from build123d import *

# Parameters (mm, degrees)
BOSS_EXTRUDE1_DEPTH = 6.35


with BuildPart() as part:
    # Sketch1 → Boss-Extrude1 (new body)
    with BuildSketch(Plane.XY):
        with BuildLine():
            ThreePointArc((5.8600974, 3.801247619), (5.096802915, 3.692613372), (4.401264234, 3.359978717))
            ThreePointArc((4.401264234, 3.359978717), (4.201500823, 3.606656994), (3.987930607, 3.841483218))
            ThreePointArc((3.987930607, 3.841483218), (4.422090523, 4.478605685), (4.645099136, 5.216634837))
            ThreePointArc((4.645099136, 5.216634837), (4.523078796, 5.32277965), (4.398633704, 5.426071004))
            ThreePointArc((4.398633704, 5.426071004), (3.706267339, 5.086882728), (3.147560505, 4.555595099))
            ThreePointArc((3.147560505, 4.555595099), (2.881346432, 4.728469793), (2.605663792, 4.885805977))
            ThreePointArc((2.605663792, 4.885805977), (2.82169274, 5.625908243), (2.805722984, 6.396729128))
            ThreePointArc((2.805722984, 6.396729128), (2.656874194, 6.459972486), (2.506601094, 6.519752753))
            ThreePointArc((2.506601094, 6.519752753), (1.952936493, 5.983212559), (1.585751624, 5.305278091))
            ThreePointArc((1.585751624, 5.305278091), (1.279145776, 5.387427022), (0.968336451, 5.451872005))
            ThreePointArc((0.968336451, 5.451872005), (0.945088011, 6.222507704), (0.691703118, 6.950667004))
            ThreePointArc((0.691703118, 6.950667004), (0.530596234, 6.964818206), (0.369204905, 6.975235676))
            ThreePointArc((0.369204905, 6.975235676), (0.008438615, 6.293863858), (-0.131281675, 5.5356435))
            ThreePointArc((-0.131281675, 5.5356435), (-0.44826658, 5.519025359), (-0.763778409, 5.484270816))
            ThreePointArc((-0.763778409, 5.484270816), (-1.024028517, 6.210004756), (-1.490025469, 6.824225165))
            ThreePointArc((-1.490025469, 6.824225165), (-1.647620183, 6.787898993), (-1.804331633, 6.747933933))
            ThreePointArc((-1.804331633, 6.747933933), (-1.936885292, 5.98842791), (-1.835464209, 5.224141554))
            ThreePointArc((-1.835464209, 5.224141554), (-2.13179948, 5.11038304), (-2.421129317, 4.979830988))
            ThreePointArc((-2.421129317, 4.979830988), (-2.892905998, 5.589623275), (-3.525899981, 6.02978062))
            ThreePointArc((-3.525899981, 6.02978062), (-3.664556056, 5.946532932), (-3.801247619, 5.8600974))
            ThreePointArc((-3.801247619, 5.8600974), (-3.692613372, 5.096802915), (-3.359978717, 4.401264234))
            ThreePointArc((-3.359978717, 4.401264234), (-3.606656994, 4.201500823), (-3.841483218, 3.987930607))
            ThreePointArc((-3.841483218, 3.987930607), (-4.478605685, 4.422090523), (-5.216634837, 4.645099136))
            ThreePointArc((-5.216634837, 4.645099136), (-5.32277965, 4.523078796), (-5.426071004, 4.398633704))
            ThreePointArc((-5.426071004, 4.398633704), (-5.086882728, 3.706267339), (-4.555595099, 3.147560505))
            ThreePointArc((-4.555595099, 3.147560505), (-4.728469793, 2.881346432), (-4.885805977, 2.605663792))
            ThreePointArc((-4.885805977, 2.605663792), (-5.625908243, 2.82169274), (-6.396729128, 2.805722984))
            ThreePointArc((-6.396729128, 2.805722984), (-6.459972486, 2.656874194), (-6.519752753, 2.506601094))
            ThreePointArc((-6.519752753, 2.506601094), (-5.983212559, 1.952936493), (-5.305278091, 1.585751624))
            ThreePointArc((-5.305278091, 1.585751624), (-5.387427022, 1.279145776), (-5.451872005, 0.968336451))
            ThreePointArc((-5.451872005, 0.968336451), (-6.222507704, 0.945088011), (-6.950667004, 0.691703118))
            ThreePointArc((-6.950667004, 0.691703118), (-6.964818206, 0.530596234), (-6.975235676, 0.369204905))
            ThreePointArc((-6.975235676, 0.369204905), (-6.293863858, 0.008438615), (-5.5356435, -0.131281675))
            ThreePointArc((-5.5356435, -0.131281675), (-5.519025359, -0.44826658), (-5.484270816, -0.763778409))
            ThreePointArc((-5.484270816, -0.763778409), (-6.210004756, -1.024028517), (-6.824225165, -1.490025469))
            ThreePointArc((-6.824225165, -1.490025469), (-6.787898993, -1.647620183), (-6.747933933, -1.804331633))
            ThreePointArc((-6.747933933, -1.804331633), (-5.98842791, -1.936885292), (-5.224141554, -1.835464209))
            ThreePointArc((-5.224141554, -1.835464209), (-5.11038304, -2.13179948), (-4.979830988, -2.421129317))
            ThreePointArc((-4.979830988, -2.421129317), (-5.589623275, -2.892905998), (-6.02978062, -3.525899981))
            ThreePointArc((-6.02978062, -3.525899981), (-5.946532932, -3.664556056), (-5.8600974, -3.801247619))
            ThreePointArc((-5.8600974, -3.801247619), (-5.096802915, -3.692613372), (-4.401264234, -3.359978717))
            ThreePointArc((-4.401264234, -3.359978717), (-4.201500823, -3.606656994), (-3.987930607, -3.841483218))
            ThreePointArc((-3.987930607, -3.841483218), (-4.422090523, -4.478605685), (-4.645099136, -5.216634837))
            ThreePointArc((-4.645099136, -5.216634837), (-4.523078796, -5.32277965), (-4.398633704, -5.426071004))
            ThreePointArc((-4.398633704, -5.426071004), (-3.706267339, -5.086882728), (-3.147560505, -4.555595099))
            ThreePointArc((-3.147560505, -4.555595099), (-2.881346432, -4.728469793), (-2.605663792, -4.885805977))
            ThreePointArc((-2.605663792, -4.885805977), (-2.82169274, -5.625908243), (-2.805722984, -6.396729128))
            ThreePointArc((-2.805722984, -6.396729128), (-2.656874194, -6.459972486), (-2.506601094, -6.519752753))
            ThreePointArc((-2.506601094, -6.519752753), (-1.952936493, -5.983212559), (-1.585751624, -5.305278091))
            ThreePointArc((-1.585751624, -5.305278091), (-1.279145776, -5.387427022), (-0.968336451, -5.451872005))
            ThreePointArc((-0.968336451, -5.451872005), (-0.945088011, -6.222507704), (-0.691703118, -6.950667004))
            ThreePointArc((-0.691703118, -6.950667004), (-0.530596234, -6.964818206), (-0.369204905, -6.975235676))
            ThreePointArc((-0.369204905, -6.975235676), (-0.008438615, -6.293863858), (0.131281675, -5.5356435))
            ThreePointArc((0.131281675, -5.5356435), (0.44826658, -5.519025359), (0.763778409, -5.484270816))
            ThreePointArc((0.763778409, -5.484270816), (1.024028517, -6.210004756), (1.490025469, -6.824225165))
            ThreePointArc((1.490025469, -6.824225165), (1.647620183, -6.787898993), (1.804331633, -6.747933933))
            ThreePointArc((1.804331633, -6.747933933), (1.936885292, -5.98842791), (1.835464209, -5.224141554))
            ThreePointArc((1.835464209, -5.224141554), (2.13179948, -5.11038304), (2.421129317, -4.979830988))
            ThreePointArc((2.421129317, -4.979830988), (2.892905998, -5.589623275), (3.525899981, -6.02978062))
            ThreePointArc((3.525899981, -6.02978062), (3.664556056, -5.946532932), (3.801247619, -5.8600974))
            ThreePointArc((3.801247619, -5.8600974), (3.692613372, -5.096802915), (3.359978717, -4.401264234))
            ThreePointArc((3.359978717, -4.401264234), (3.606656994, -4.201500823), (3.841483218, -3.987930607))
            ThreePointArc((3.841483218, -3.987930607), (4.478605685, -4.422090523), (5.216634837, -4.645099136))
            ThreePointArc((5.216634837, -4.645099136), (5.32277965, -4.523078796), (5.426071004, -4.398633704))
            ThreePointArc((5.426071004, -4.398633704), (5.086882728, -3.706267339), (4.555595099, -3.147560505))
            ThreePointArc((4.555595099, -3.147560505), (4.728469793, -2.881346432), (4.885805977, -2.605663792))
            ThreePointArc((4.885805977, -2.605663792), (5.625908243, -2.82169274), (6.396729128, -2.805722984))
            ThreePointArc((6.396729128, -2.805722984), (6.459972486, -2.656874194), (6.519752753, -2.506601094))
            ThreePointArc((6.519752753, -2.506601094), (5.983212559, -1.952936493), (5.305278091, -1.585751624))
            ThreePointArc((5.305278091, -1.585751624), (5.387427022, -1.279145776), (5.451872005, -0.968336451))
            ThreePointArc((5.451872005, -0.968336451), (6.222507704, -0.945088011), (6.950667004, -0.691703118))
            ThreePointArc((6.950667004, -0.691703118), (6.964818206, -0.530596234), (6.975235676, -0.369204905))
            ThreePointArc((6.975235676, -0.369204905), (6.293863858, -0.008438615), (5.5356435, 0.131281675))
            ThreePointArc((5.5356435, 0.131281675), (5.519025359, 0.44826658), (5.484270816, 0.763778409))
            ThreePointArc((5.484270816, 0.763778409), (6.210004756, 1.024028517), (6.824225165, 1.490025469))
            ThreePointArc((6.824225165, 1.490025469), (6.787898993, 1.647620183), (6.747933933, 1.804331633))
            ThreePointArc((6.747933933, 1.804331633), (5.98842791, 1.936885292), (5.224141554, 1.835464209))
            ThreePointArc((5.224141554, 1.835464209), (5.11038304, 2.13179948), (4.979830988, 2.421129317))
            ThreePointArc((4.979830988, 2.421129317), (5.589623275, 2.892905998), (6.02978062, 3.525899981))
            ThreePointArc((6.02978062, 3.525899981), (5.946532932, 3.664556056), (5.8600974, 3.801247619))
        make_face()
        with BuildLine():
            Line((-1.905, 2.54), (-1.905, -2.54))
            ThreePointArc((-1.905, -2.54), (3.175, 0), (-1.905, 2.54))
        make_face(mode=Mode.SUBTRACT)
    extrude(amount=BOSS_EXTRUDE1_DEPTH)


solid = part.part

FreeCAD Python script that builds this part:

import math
import FreeCAD as App
import Part
import Sketcher
Q = App.Units.Quantity

doc = App.newDocument("Part")
body = doc.addObject("PartDesign::Body", "Body")

# Sketch on XY plane
sketch1 = doc.addObject("Sketcher::SketchObject", "Sketch")
body.addObject(sketch1)
sketch1.AttachmentSupport = (doc.XY_Plane, [""])
sketch1.MapMode = "FlatFace"
sketch1.addGeometry([
    Part.ArcOfCircle(Part.Circle(App.Vector(5.832198, 1.261401, 0), App.Vector(0, 0, 1), 2.54), math.radians(89.370646), math.radians(124.288462)),  # 0
    Part.ArcOfCircle(Part.Circle(App.Vector(0, 0, 0), App.Vector(0, 0, 1), 5.5372), math.radians(37.358555), math.radians(43.928421)),  # 1
    Part.ArcOfCircle(Part.Circle(App.Vector(2.130337, 5.573807, 0), App.Vector(0, 0, 1), 2.54), math.radians(-43.001486), math.radians(-8.08367)),  # 2
    Part.ArcOfCircle(Part.Circle(App.Vector(-0.000001, -0.000001, 0), App.Vector(0, 0, 1), 6.985002), math.radians(48.316861), math.radians(50.970115)),  # 3
    Part.ArcOfCircle(Part.Circle(App.Vector(5.156955, 3.001912, 0), App.Vector(0, 0, 1), 2.54), math.radians(107.370646), math.radians(142.288462)),  # 4
    Part.ArcOfCircle(Part.Circle(App.Vector(0, 0, 0), App.Vector(0, 0, 1), 5.5372), math.radians(55.358555), math.radians(61.928421)),  # 5
    Part.ArcOfCircle(Part.Circle(App.Vector(0.30367, 5.959316, 0), App.Vector(0, 0, 1), 2.54), math.radians(-25.001486), math.radians(9.91633)),  # 6
    Part.ArcOfCircle(Part.Circle(App.Vector(0, 0, 0), App.Vector(0, 0, 1), 6.985), math.radians(66.31686), math.radians(68.970115)),  # 7
    Part.ArcOfCircle(Part.Circle(App.Vector(3.976914, 4.448575, 0), App.Vector(0, 0, 1), 2.54), math.radians(125.370646), math.radians(160.288462)),  # 8
    Part.ArcOfCircle(Part.Circle(App.Vector(0, 0, 0), App.Vector(0, 0, 1), 5.5372), math.radians(73.358555), math.radians(79.92842)),  # 9
    Part.ArcOfCircle(Part.Circle(App.Vector(-1.552723, 5.761486, 0), App.Vector(0, 0, 1), 2.54), math.radians(-7.001486), math.radians(27.91633)),  # 10
    Part.ArcOfCircle(Part.Circle(App.Vector(0, 0.000001, 0), App.Vector(0, 0, 1), 6.984999), math.radians(84.31686), math.radians(86.970116)),  # 11
    Part.ArcOfCircle(Part.Circle(App.Vector(2.407585, 5.45978, 0), App.Vector(0, 0, 1), 2.54), math.radians(143.370646), math.radians(178.288462)),  # 12
    Part.ArcOfCircle(Part.Circle(App.Vector(0, 0, 0), App.Vector(0, 0, 1), 5.5372), math.radians(91.358555), math.radians(97.928421)),  # 13
    Part.ArcOfCircle(Part.Circle(App.Vector(-3.257124, 4.999681, 0), App.Vector(0, 0, 1), 2.54), math.radians(10.998514), math.radians(45.91633)),  # 14
    Part.ArcOfCircle(Part.Circle(App.Vector(0, 0.000001, 0), App.Vector(0, 0, 1), 6.984999), math.radians(102.31686), math.radians(104.970115)),  # 15
    Part.ArcOfCircle(Part.Circle(App.Vector(0.602585, 5.936544, 0), App.Vector(0, 0, 1), 2.54), math.radians(161.370646), math.radians(196.288462)),  # 16
    Part.ArcOfCircle(Part.Circle(App.Vector(0, 0, 0), App.Vector(0, 0, 1), 5.5372), math.radians(109.358555), math.radians(115.928421)),  # 17
    Part.ArcOfCircle(Part.Circle(App.Vector(-4.642695, 3.748472, 0), App.Vector(0, 0, 1), 2.54), math.radians(28.998514), math.radians(63.91633)),  # 18
    Part.ArcOfCircle(Part.Circle(App.Vector(0, 0, 0), App.Vector(0, 0, 1), 6.985), math.radians(120.31686), math.radians(122.970115)),  # 19
    Part.ArcOfCircle(Part.Circle(App.Vector(-1.261401, 5.832198, 0), App.Vector(0, 0, 1), 2.54), math.radians(179.370646), math.radians(214.288462)),  # 20
    Part.ArcOfCircle(Part.Circle(App.Vector(0, 0, 0), App.Vector(0, 0, 1), 5.5372), math.radians(127.358555), math.radians(133.928421)),  # 21
    Part.ArcOfCircle(Part.Circle(App.Vector(-5.573807, 2.130337, 0), App.Vector(0, 0, 1), 2.54), math.radians(46.998514), math.radians(81.91633)),  # 22
    Part.ArcOfCircle(Part.Circle(App.Vector(0.000001, -0.000001, 0), App.Vector(0, 0, 1), 6.985002), math.radians(138.316861), math.radians(140.970115)),  # 23
    Part.ArcOfCircle(Part.Circle(App.Vector(-3.001912, 5.156955, 0), App.Vector(0, 0, 1), 2.54), math.radians(-162.629354), math.radians(-127.711538)),  # 24
    Part.ArcOfCircle(Part.Circle(App.Vector(0, 0, 0), App.Vector(0, 0, 1), 5.5372), math.radians(145.358555), math.radians(151.928421)),  # 25
    Part.ArcOfCircle(Part.Circle(App.Vector(-5.959316, 0.30367, 0), App.Vector(0, 0, 1), 2.54), math.radians(64.998514), math.radians(99.91633)),  # 26
    Part.ArcOfCircle(Part.Circle(App.Vector(0, 0, 0), App.Vector(0, 0, 1), 6.985), math.radians(156.31686), math.radians(158.970115)),  # 27
    Part.ArcOfCircle(Part.Circle(App.Vector(-4.448575, 3.976914, 0), App.Vector(0, 0, 1), 2.54), math.radians(-144.629354), math.radians(-109.711538)),  # 28
    Part.ArcOfCircle(Part.Circle(App.Vector(0, 0, 0), App.Vector(0, 0, 1), 5.5372), math.radians(163.358555), math.radians(169.92842)),  # 29
    Part.ArcOfCircle(Part.Circle(App.Vector(-5.761486, -1.552723, 0), App.Vector(0, 0, 1), 2.54), math.radians(82.998514), math.radians(117.91633)),  # 30
    Part.ArcOfCircle(Part.Circle(App.Vector(-0.000001, 0, 0), App.Vector(0, 0, 1), 6.984999), math.radians(174.31686), math.radians(176.970116)),  # 31
    Part.ArcOfCircle(Part.Circle(App.Vector(-5.45978, 2.407585, 0), App.Vector(0, 0, 1), 2.54), math.radians(-126.629354), math.radians(-91.711538)),  # 32
    Part.ArcOfCircle(Part.Circle(App.Vector(0, 0, 0), App.Vector(0, 0, 1), 5.5372), math.radians(-178.641445), math.radians(-172.071579)),  # 33
    Part.ArcOfCircle(Part.Circle(App.Vector(-4.999681, -3.257124, 0), App.Vector(0, 0, 1), 2.54), math.radians(100.998514), math.radians(135.91633)),  # 34
    Part.ArcOfCircle(Part.Circle(App.Vector(-0.000001, 0, 0), App.Vector(0, 0, 1), 6.984999), math.radians(-167.68314), math.radians(-165.029885)),  # 35
    Part.ArcOfCircle(Part.Circle(App.Vector(-5.936544, 0.602585, 0), App.Vector(0, 0, 1), 2.54), math.radians(-108.629354), math.radians(-73.711538)),  # 36
    Part.ArcOfCircle(Part.Circle(App.Vector(0, 0, 0), App.Vector(0, 0, 1), 5.5372), math.radians(-160.641445), math.radians(-154.071579)),  # 37
    Part.ArcOfCircle(Part.Circle(App.Vector(-3.748472, -4.642695, 0), App.Vector(0, 0, 1), 2.54), math.radians(118.998514), math.radians(153.91633)),  # 38
    Part.ArcOfCircle(Part.Circle(App.Vector(0, 0, 0), App.Vector(0, 0, 1), 6.985), math.radians(-149.68314), math.radians(-147.029885)),  # 39
    Part.ArcOfCircle(Part.Circle(App.Vector(-5.832198, -1.261401, 0), App.Vector(0, 0, 1), 2.54), math.radians(-90.629354), math.radians(-55.711538)),  # 40
    Part.ArcOfCircle(Part.Circle(App.Vector(0, 0, 0), App.Vector(0, 0, 1), 5.5372), math.radians(-142.641445), math.radians(-136.071579)),  # 41
    Part.ArcOfCircle(Part.Circle(App.Vector(-2.130337, -5.573807, 0), App.Vector(0, 0, 1), 2.54), math.radians(136.998514), math.radians(171.91633)),  # 42
    Part.ArcOfCircle(Part.Circle(App.Vector(0.000001, 0.000001, 0), App.Vector(0, 0, 1), 6.985002), math.radians(-131.683139), math.radians(-129.029885)),  # 43
    Part.ArcOfCircle(Part.Circle(App.Vector(-5.156955, -3.001912, 0), App.Vector(0, 0, 1), 2.54), math.radians(-72.629354), math.radians(-37.711538)),  # 44
    Part.ArcOfCircle(Part.Circle(App.Vector(0, 0, 0), App.Vector(0, 0, 1), 5.5372), math.radians(-124.641445), math.radians(-118.071579)),  # 45
    Part.ArcOfCircle(Part.Circle(App.Vector(-0.30367, -5.959316, 0), App.Vector(0, 0, 1), 2.54), math.radians(154.998514), math.radians(189.91633)),  # 46
    Part.ArcOfCircle(Part.Circle(App.Vector(0, 0, 0), App.Vector(0, 0, 1), 6.985), math.radians(-113.68314), math.radians(-111.029885)),  # 47
    Part.ArcOfCircle(Part.Circle(App.Vector(-3.976914, -4.448575, 0), App.Vector(0, 0, 1), 2.54), math.radians(-54.629354), math.radians(-19.711538)),  # 48
    Part.ArcOfCircle(Part.Circle(App.Vector(0, 0, 0), App.Vector(0, 0, 1), 5.5372), math.radians(-106.641445), math.radians(-100.07158)),  # 49
    Part.ArcOfCircle(Part.Circle(App.Vector(1.552723, -5.761486, 0), App.Vector(0, 0, 1), 2.54), math.radians(172.998514), math.radians(207.91633)),  # 50
    Part.ArcOfCircle(Part.Circle(App.Vector(0, -0.000001, 0), App.Vector(0, 0, 1), 6.984999), math.radians(-95.68314), math.radians(-93.029884)),  # 51
    Part.ArcOfCircle(Part.Circle(App.Vector(-2.407585, -5.45978, 0), App.Vector(0, 0, 1), 2.54), math.radians(-36.629354), math.radians(-1.711538)),  # 52
    Part.ArcOfCircle(Part.Circle(App.Vector(0, 0, 0), App.Vector(0, 0, 1), 5.5372), math.radians(-88.641445), math.radians(-82.071579)),  # 53
    Part.ArcOfCircle(Part.Circle(App.Vector(3.257124, -4.999681, 0), App.Vector(0, 0, 1), 2.54), math.radians(-169.001486), math.radians(-134.08367)),  # 54
    Part.ArcOfCircle(Part.Circle(App.Vector(0, -0.000001, 0), App.Vector(0, 0, 1), 6.984999), math.radians(-77.68314), math.radians(-75.029885)),  # 55
    Part.ArcOfCircle(Part.Circle(App.Vector(-0.602585, -5.936544, 0), App.Vector(0, 0, 1), 2.54), math.radians(-18.629354), math.radians(16.288462)),  # 56
    Part.ArcOfCircle(Part.Circle(App.Vector(0, 0, 0), App.Vector(0, 0, 1), 5.5372), math.radians(-70.641445), math.radians(-64.071579)),  # 57
    Part.ArcOfCircle(Part.Circle(App.Vector(4.642695, -3.748472, 0), App.Vector(0, 0, 1), 2.54), math.radians(-151.001486), math.radians(-116.08367)),  # 58
    Part.ArcOfCircle(Part.Circle(App.Vector(0, 0, 0), App.Vector(0, 0, 1), 6.985), math.radians(-59.68314), math.radians(-57.029885)),  # 59
    Part.ArcOfCircle(Part.Circle(App.Vector(1.261401, -5.832198, 0), App.Vector(0, 0, 1), 2.54), math.radians(-0.629354), math.radians(34.288462)),  # 60
    Part.ArcOfCircle(Part.Circle(App.Vector(0, 0, 0), App.Vector(0, 0, 1), 5.5372), math.radians(-52.641445), math.radians(-46.071579)),  # 61
    Part.ArcOfCircle(Part.Circle(App.Vector(5.573807, -2.130337, 0), App.Vector(0, 0, 1), 2.54), math.radians(-133.001486), math.radians(-98.08367)),  # 62
    Part.ArcOfCircle(Part.Circle(App.Vector(-0.000001, 0.000001, 0), App.Vector(0, 0, 1), 6.985002), math.radians(-41.683139), math.radians(-39.029885)),  # 63
    Part.ArcOfCircle(Part.Circle(App.Vector(3.001912, -5.156955, 0), App.Vector(0, 0, 1), 2.54), math.radians(17.370646), math.radians(52.288462)),  # 64
    Part.ArcOfCircle(Part.Circle(App.Vector(0, 0, 0), App.Vector(0, 0, 1), 5.5372), math.radians(-34.641445), math.radians(-28.071579)),  # 65
    Part.ArcOfCircle(Part.Circle(App.Vector(5.959316, -0.30367, 0), App.Vector(0, 0, 1), 2.54), math.radians(-115.001486), math.radians(-80.08367)),  # 66
    Part.ArcOfCircle(Part.Circle(App.Vector(0, 0, 0), App.Vector(0, 0, 1), 6.985), math.radians(-23.68314), math.radians(-21.029885)),  # 67
    Part.ArcOfCircle(Part.Circle(App.Vector(4.448575, -3.976914, 0), App.Vector(0, 0, 1), 2.54), math.radians(35.370646), math.radians(70.288462)),  # 68
    Part.ArcOfCircle(Part.Circle(App.Vector(0, 0, 0), App.Vector(0, 0, 1), 5.5372), math.radians(-16.641445), math.radians(-10.07158)),  # 69
    Part.ArcOfCircle(Part.Circle(App.Vector(5.761486, 1.552723, 0), App.Vector(0, 0, 1), 2.54), math.radians(-97.001486), math.radians(-62.08367)),  # 70
    Part.ArcOfCircle(Part.Circle(App.Vector(0.000001, 0, 0), App.Vector(0, 0, 1), 6.984999), math.radians(-5.68314), math.radians(-3.029884)),  # 71
    Part.ArcOfCircle(Part.Circle(App.Vector(5.45978, -2.407585, 0), App.Vector(0, 0, 1), 2.54), math.radians(53.370646), math.radians(88.288462)),  # 72
    Part.ArcOfCircle(Part.Circle(App.Vector(0, 0, 0), App.Vector(0, 0, 1), 5.5372), math.radians(1.358555), math.radians(7.928421)),  # 73
    Part.ArcOfCircle(Part.Circle(App.Vector(4.999681, 3.257124, 0), App.Vector(0, 0, 1), 2.54), math.radians(-79.001486), math.radians(-44.08367)),  # 74
    Part.ArcOfCircle(Part.Circle(App.Vector(0.000001, 0, 0), App.Vector(0, 0, 1), 6.984999), math.radians(12.31686), math.radians(14.970115)),  # 75
    Part.ArcOfCircle(Part.Circle(App.Vector(5.936544, -0.602585, 0), App.Vector(0, 0, 1), 2.54), math.radians(71.370646), math.radians(106.288462)),  # 76
    Part.ArcOfCircle(Part.Circle(App.Vector(0, 0, 0), App.Vector(0, 0, 1), 5.5372), math.radians(19.358555), math.radians(25.928421)),  # 77
    Part.ArcOfCircle(Part.Circle(App.Vector(3.748472, 4.642695, 0), App.Vector(0, 0, 1), 2.54), math.radians(-61.001486), math.radians(-26.08367)),  # 78
    Part.ArcOfCircle(Part.Circle(App.Vector(0, 0, 0), App.Vector(0, 0, 1), 6.985), math.radians(30.31686), math.radians(32.970115)),  # 79
    Part.LineSegment(App.Vector(-1.905, -2.54, 0), App.Vector(-1.905, 2.54, 0)),  # 80
    Part.ArcOfCircle(Part.Circle(App.Vector(0, 0, 0), App.Vector(0, 0, 1), 3.175), math.radians(-126.869898), math.radians(126.869898)),  # 81
], False)
sketch1.addConstraint([
    Sketcher.Constraint("Coincident", 0, 2, 1, 1),
    Sketcher.Constraint("Coincident", 1, 2, 2, 1),
    Sketcher.Constraint("Coincident", 2, 2, 3, 1),
    Sketcher.Constraint("Coincident", 3, 2, 4, 1),
    Sketcher.Constraint("Coincident", 4, 2, 5, 1),
    Sketcher.Constraint("Coincident", 5, 2, 6, 1),
    Sketcher.Constraint("Coincident", 6, 2, 7, 1),
    Sketcher.Constraint("Coincident", 7, 2, 8, 1),
    Sketcher.Constraint("Coincident", 8, 2, 9, 1),
    Sketcher.Constraint("Coincident", 9, 2, 10, 1),
    Sketcher.Constraint("Coincident", 10, 2, 11, 1),
    Sketcher.Constraint("Coincident", 11, 2, 12, 1),
    Sketcher.Constraint("Coincident", 12, 2, 13, 1),
    Sketcher.Constraint("Coincident", 13, 2, 14, 1),
    Sketcher.Constraint("Coincident", 14, 2, 15, 1),
    Sketcher.Constraint("Coincident", 15, 2, 16, 1),
    Sketcher.Constraint("Coincident", 16, 2, 17, 1),
    Sketcher.Constraint("Coincident", 17, 2, 18, 1),
    Sketcher.Constraint("Coincident", 18, 2, 19, 1),
    Sketcher.Constraint("Coincident", 19, 2, 20, 1),
    Sketcher.Constraint("Coincident", 20, 2, 21, 1),
    Sketcher.Constraint("Coincident", 21, 2, 22, 1),
    Sketcher.Constraint("Coincident", 22, 2, 23, 1),
    Sketcher.Constraint("Coincident", 23, 2, 24, 1),
    Sketcher.Constraint("Coincident", 24, 2, 25, 1),
    Sketcher.Constraint("Coincident", 25, 2, 26, 1),
    Sketcher.Constraint("Coincident", 26, 2, 27, 1),
    Sketcher.Constraint("Coincident", 27, 2, 28, 1),
    Sketcher.Constraint("Coincident", 28, 2, 29, 1),
    Sketcher.Constraint("Coincident", 29, 2, 30, 1),
    Sketcher.Constraint("Coincident", 30, 2, 31, 1),
    Sketcher.Constraint("Coincident", 31, 2, 32, 1),
    Sketcher.Constraint("Coincident", 32, 2, 33, 1),
    Sketcher.Constraint("Coincident", 33, 2, 34, 1),
    Sketcher.Constraint("Coincident", 34, 2, 35, 1),
    Sketcher.Constraint("Coincident", 35, 2, 36, 1),
    Sketcher.Constraint("Coincident", 36, 2, 37, 1),
    Sketcher.Constraint("Coincident", 37, 2, 38, 1),
    Sketcher.Constraint("Coincident", 38, 2, 39, 1),
    Sketcher.Constraint("Coincident", 39, 2, 40, 1),
    Sketcher.Constraint("Coincident", 40, 2, 41, 1),
    Sketcher.Constraint("Coincident", 41, 2, 42, 1),
    Sketcher.Constraint("Coincident", 42, 2, 43, 1),
    Sketcher.Constraint("Coincident", 43, 2, 44, 1),
    Sketcher.Constraint("Coincident", 44, 2, 45, 1),
    Sketcher.Constraint("Coincident", 45, 2, 46, 1),
    Sketcher.Constraint("Coincident", 46, 2, 47, 1),
    Sketcher.Constraint("Coincident", 47, 2, 48, 1),
    Sketcher.Constraint("Coincident", 48, 2, 49, 1),
    Sketcher.Constraint("Coincident", 49, 2, 50, 1),
    Sketcher.Constraint("Coincident", 50, 2, 51, 1),
    Sketcher.Constraint("Coincident", 51, 2, 52, 1),
    Sketcher.Constraint("Coincident", 52, 2, 53, 1),
    Sketcher.Constraint("Coincident", 53, 2, 54, 1),
    Sketcher.Constraint("Coincident", 54, 2, 55, 1),
    Sketcher.Constraint("Coincident", 55, 2, 56, 1),
    Sketcher.Constraint("Coincident", 56, 2, 57, 1),
    Sketcher.Constraint("Coincident", 57, 2, 58, 1),
    Sketcher.Constraint("Coincident", 58, 2, 59, 1),
    Sketcher.Constraint("Coincident", 59, 2, 60, 1),
    Sketcher.Constraint("Coincident", 60, 2, 61, 1),
    Sketcher.Constraint("Coincident", 61, 2, 62, 1),
    Sketcher.Constraint("Coincident", 62, 2, 63, 1),
    Sketcher.Constraint("Coincident", 63, 2, 64, 1),
    Sketcher.Constraint("Coincident", 64, 2, 65, 1),
    Sketcher.Constraint("Coincident", 65, 2, 66, 1),
    Sketcher.Constraint("Coincident", 66, 2, 67, 1),
    Sketcher.Constraint("Coincident", 67, 2, 68, 1),
    Sketcher.Constraint("Coincident", 68, 2, 69, 1),
    Sketcher.Constraint("Coincident", 69, 2, 70, 1),
    Sketcher.Constraint("Coincident", 70, 2, 71, 1),
    Sketcher.Constraint("Coincident", 71, 2, 72, 1),
    Sketcher.Constraint("Coincident", 72, 2, 73, 1),
    Sketcher.Constraint("Coincident", 73, 2, 74, 1),
    Sketcher.Constraint("Coincident", 74, 2, 75, 1),
    Sketcher.Constraint("Coincident", 75, 2, 76, 1),
    Sketcher.Constraint("Coincident", 76, 2, 77, 1),
    Sketcher.Constraint("Coincident", 77, 2, 78, 1),
    Sketcher.Constraint("Coincident", 78, 2, 79, 1),
    Sketcher.Constraint("Coincident", 79, 2, 0, 1),
    Sketcher.Constraint("Coincident", 80, 1, 81, 1),
    Sketcher.Constraint("Coincident", 81, 2, 80, 2),
    Sketcher.Constraint("Vertical", 80),
    Sketcher.Constraint("Coincident", 1, 3, -1, 1),
    Sketcher.Constraint("Coincident", 3, 3, -1, 1),
    Sketcher.Constraint("Coincident", 5, 3, -1, 1),
    Sketcher.Constraint("Coincident", 7, 3, -1, 1),
    Sketcher.Constraint("Coincident", 9, 3, -1, 1),
    Sketcher.Constraint("Coincident", 11, 3, -1, 1),
    Sketcher.Constraint("Coincident", 13, 3, -1, 1),
    Sketcher.Constraint("Coincident", 15, 3, -1, 1),
    Sketcher.Constraint("Coincident", 17, 3, -1, 1),
    Sketcher.Constraint("Coincident", 19, 3, -1, 1),
    Sketcher.Constraint("Coincident", 21, 3, -1, 1),
    Sketcher.Constraint("Coincident", 23, 3, -1, 1),
    Sketcher.Constraint("Coincident", 25, 3, -1, 1),
    Sketcher.Constraint("Coincident", 27, 3, -1, 1),
    Sketcher.Constraint("Coincident", 29, 3, -1, 1),
    Sketcher.Constraint("Coincident", 31, 3, -1, 1),
    Sketcher.Constraint("Coincident", 33, 3, -1, 1),
    Sketcher.Constraint("Coincident", 35, 3, -1, 1),
    Sketcher.Constraint("Coincident", 37, 3, -1, 1),
    Sketcher.Constraint("Coincident", 39, 3, -1, 1),
    Sketcher.Constraint("Coincident", 41, 3, -1, 1),
    Sketcher.Constraint("Coincident", 43, 3, -1, 1),
    Sketcher.Constraint("Coincident", 45, 3, -1, 1),
    Sketcher.Constraint("Coincident", 47, 3, -1, 1),
    Sketcher.Constraint("Coincident", 49, 3, -1, 1),
    Sketcher.Constraint("Coincident", 51, 3, -1, 1),
    Sketcher.Constraint("Coincident", 53, 3, -1, 1),
    Sketcher.Constraint("Coincident", 55, 3, -1, 1),
    Sketcher.Constraint("Coincident", 57, 3, -1, 1),
    Sketcher.Constraint("Coincident", 59, 3, -1, 1),
    Sketcher.Constraint("Coincident", 61, 3, -1, 1),
    Sketcher.Constraint("Coincident", 63, 3, -1, 1),
    Sketcher.Constraint("Coincident", 65, 3, -1, 1),
    Sketcher.Constraint("Coincident", 67, 3, -1, 1),
    Sketcher.Constraint("Coincident", 69, 3, -1, 1),
    Sketcher.Constraint("Coincident", 71, 3, -1, 1),
    Sketcher.Constraint("Coincident", 73, 3, -1, 1),
    Sketcher.Constraint("Coincident", 75, 3, -1, 1),
    Sketcher.Constraint("Coincident", 77, 3, -1, 1),
    Sketcher.Constraint("Coincident", 79, 3, -1, 1),
    Sketcher.Constraint("Coincident", 81, 3, -1, 1),
    Sketcher.Constraint("Radius", 0, Q("0.1 in")),
    Sketcher.Constraint("Radius", 2, Q("0.1 in")),
    Sketcher.Constraint("Radius", 4, Q("0.1 in")),
    Sketcher.Constraint("Radius", 6, Q("0.1 in")),
    Sketcher.Constraint("Radius", 8, Q("0.1 in")),
    Sketcher.Constraint("Radius", 10, Q("0.1 in")),
    Sketcher.Constraint("Radius", 12, Q("0.1 in")),
    Sketcher.Constraint("Radius", 14, Q("0.1 in")),
    Sketcher.Constraint("Radius", 16, Q("0.1 in")),
    Sketcher.Constraint("Radius", 18, Q("0.1 in")),
    Sketcher.Constraint("Radius", 20, Q("0.1 in")),
    Sketcher.Constraint("Radius", 22, Q("0.1 in")),
    Sketcher.Constraint("Radius", 24, Q("0.1 in")),
    Sketcher.Constraint("Radius", 26, Q("0.1 in")),
    Sketcher.Constraint("Radius", 28, Q("0.1 in")),
    Sketcher.Constraint("Radius", 30, Q("0.1 in")),
    Sketcher.Constraint("Radius", 32, Q("0.1 in")),
    Sketcher.Constraint("Radius", 34, Q("0.1 in")),
    Sketcher.Constraint("Radius", 36, Q("0.1 in")),
    Sketcher.Constraint("Radius", 38, Q("0.1 in")),
    Sketcher.Constraint("Radius", 40, Q("0.1 in")),
    Sketcher.Constraint("Radius", 42, Q("0.1 in")),
    Sketcher.Constraint("Radius", 44, Q("0.1 in")),
    Sketcher.Constraint("Radius", 46, Q("0.1 in")),
    Sketcher.Constraint("Radius", 48, Q("0.1 in")),
    Sketcher.Constraint("Radius", 50, Q("0.1 in")),
    Sketcher.Constraint("Radius", 52, Q("0.1 in")),
    Sketcher.Constraint("Radius", 54, Q("0.1 in")),
    Sketcher.Constraint("Radius", 56, Q("0.1 in")),
    Sketcher.Constraint("Radius", 58, Q("0.1 in")),
    Sketcher.Constraint("Radius", 60, Q("0.1 in")),
    Sketcher.Constraint("Radius", 62, Q("0.1 in")),
    Sketcher.Constraint("Radius", 64, Q("0.1 in")),
    Sketcher.Constraint("Radius", 66, Q("0.1 in")),
    Sketcher.Constraint("Radius", 68, Q("0.1 in")),
    Sketcher.Constraint("Radius", 70, Q("0.1 in")),
    Sketcher.Constraint("Radius", 72, Q("0.1 in")),
    Sketcher.Constraint("Radius", 74, Q("0.1 in")),
    Sketcher.Constraint("Radius", 76, Q("0.1 in")),
    Sketcher.Constraint("Radius", 78, Q("0.1 in")),
    Sketcher.Constraint("DistanceY", 80, 1, 80, 2, Q("0.2 in")),
    Sketcher.Constraint("Radius", 1, Q("0.218 in")),
    Sketcher.Constraint("Radius", 3, Q("0.2750001 in")),
    Sketcher.Constraint("Radius", 5, Q("0.218 in")),
    Sketcher.Constraint("Radius", 7, Q("0.275 in")),
    Sketcher.Constraint("Radius", 9, Q("0.218 in")),
    Sketcher.Constraint("Radius", 11, Q("0.2749999 in")),
    Sketcher.Constraint("Radius", 13, Q("0.218 in")),
    Sketcher.Constraint("Radius", 15, Q("0.275 in")),
    Sketcher.Constraint("Radius", 17, Q("0.218 in")),
    Sketcher.Constraint("Radius", 19, Q("0.275 in")),
    Sketcher.Constraint("Radius", 21, Q("0.218 in")),
    Sketcher.Constraint("Radius", 23, Q("0.2750001 in")),
    Sketcher.Constraint("Radius", 25, Q("0.218 in")),
    Sketcher.Constraint("Radius", 27, Q("0.275 in")),
    Sketcher.Constraint("Radius", 29, Q("0.218 in")),
    Sketcher.Constraint("Radius", 31, Q("0.2749999 in")),
    Sketcher.Constraint("Radius", 33, Q("0.218 in")),
    Sketcher.Constraint("Radius", 35, Q("0.275 in")),
    Sketcher.Constraint("Radius", 37, Q("0.218 in")),
    Sketcher.Constraint("Radius", 39, Q("0.275 in")),
    Sketcher.Constraint("Radius", 41, Q("0.218 in")),
    Sketcher.Constraint("Radius", 43, Q("0.2750001 in")),
    Sketcher.Constraint("Radius", 45, Q("0.218 in")),
    Sketcher.Constraint("Radius", 47, Q("0.275 in")),
    Sketcher.Constraint("Radius", 49, Q("0.218 in")),
    Sketcher.Constraint("Radius", 51, Q("0.2749999 in")),
    Sketcher.Constraint("Radius", 53, Q("0.218 in")),
    Sketcher.Constraint("Radius", 55, Q("0.275 in")),
    Sketcher.Constraint("Radius", 57, Q("0.218 in")),
    Sketcher.Constraint("Radius", 59, Q("0.275 in")),
    Sketcher.Constraint("Radius", 61, Q("0.218 in")),
    Sketcher.Constraint("Radius", 63, Q("0.2750001 in")),
    Sketcher.Constraint("Radius", 65, Q("0.218 in")),
    Sketcher.Constraint("Radius", 67, Q("0.275 in")),
    Sketcher.Constraint("Radius", 69, Q("0.218 in")),
    Sketcher.Constraint("Radius", 71, Q("0.2749999 in")),
    Sketcher.Constraint("Radius", 73, Q("0.218 in")),
    Sketcher.Constraint("Radius", 75, Q("0.275 in")),
    Sketcher.Constraint("Radius", 77, Q("0.218 in")),
    Sketcher.Constraint("Radius", 79, Q("0.275 in")),
    Sketcher.Constraint("Radius", 81, Q("0.125 in")),
    Sketcher.Constraint("DistanceY", -1, 1, 0, 3, 1.261401),
    Sketcher.Constraint("DistanceX", 20, 3, -1, 1, 1.261401),
    Sketcher.Constraint("DistanceY", 40, 3, -1, 1, 1.261401),
    Sketcher.Constraint("DistanceX", -1, 1, 60, 3, 1.261401),
    Sketcher.Constraint("DistanceX", -1, 1, 2, 2, 4.645099),
    Sketcher.Constraint("DistanceX", -1, 1, 7, 2, 2.506601),
    Sketcher.Constraint("DistanceX", 18, 2, -1, 1, 3.5259),
    Sketcher.Constraint("DistanceY", -1, 1, 22, 2, 4.645099),
    Sketcher.Constraint("DistanceY", -1, 1, 27, 2, 2.506601),
    Sketcher.Constraint("DistanceY", 38, 2, -1, 1, 3.5259),
    Sketcher.Constraint("DistanceX", 42, 2, -1, 1, 4.645099),
    Sketcher.Constraint("DistanceX", 47, 2, -1, 1, 2.506601),
    Sketcher.Constraint("DistanceX", -1, 1, 58, 2, 3.5259),
    Sketcher.Constraint("DistanceY", 62, 2, -1, 1, 4.645099),
    Sketcher.Constraint("DistanceY", 67, 2, -1, 1, 2.506601),
    Sketcher.Constraint("DistanceY", -1, 1, 78, 2, 3.5259),
    Sketcher.Constraint("DistanceY", -1, 1, 4, 3, 3.001912),
    Sketcher.Constraint("DistanceX", -1, 1, 6, 3, 0.30367),
    Sketcher.Constraint("DistanceY", -1, 1, 12, 3, 5.45978),
    Sketcher.Constraint("DistanceY", -1, 1, 14, 3, 4.999681),
    Sketcher.Constraint("DistanceX", 24, 3, -1, 1, 3.001912),
    Sketcher.Constraint("DistanceY", -1, 1, 26, 3, 0.30367),
    Sketcher.Constraint("DistanceX", 32, 3, -1, 1, 5.45978),
    Sketcher.Constraint("DistanceX", 34, 3, -1, 1, 4.999681),
    Sketcher.Constraint("DistanceY", 44, 3, -1, 1, 3.001912),
    Sketcher.Constraint("DistanceX", 46, 3, -1, 1, 0.30367),
    Sketcher.Constraint("DistanceY", 52, 3, -1, 1, 5.45978),
    Sketcher.Constraint("DistanceY", 54, 3, -1, 1, 4.999681),
    Sketcher.Constraint("DistanceX", -1, 1, 64, 3, 3.001912),
    Sketcher.Constraint("DistanceY", 66, 3, -1, 1, 0.30367),
    Sketcher.Constraint("DistanceX", -1, 1, 72, 3, 5.45978),
    Sketcher.Constraint("DistanceX", -1, 1, 74, 3, 4.999681),
    Sketcher.Constraint("DistanceY", -1, 1, 0, 2, 3.359979),
    Sketcher.Constraint("DistanceX", -1, 1, 1, 2, 3.987931),
    Sketcher.Constraint("DistanceY", -1, 1, 3, 2, 5.426071),
    Sketcher.Constraint("DistanceY", -1, 1, 6, 2, 6.396729),
    Sketcher.Constraint("DistanceX", -1, 1, 8, 2, 1.585752),
    Sketcher.Constraint("DistanceX", 12, 2, -1, 1, 0.131282),
    Sketcher.Constraint("DistanceX", 13, 2, -1, 1, 0.763778),
    Sketcher.Constraint("DistanceX", 15, 2, -1, 1, 1.804332),
    Sketcher.Constraint("DistanceY", -1, 1, 16, 2, 5.224142),
    Sketcher.Constraint("DistanceX", 17, 2, -1, 1, 2.421129),
    Sketcher.Constraint("DistanceX", 20, 2, -1, 1, 3.359979),
    Sketcher.Constraint("DistanceY", -1, 1, 21, 2, 3.987931),
    Sketcher.Constraint("DistanceX", 23, 2, -1, 1, 5.426071),
    Sketcher.Constraint("DistanceX", 26, 2, -1, 1, 6.396729),
    Sketcher.Constraint("DistanceX", 28, 2, -1, 1, 5.305278),
    Sketcher.Constraint("DistanceY", 32, 2, -1, 1, 0.131282),
    Sketcher.Constraint("DistanceX", 33, 2, -1, 1, 5.484271),
    Sketcher.Constraint("DistanceY", 35, 2, -1, 1, 1.804332),
    Sketcher.Constraint("DistanceX", 36, 2, -1, 1, 5.224142),
    Sketcher.Constraint("DistanceX", 37, 2, -1, 1, 4.979831),
    Sketcher.Constraint("DistanceY", 40, 2, -1, 1, 3.359979),
    Sketcher.Constraint("DistanceX", 41, 2, -1, 1, 3.987931),
    Sketcher.Constraint("DistanceY", 43, 2, -1, 1, 5.426071),
    Sketcher.Constraint("DistanceY", 46, 2, -1, 1, 6.396729),
    Sketcher.Constraint("DistanceX", 48, 2, -1, 1, 1.585752),
    Sketcher.Constraint("DistanceX", -1, 1, 52, 2, 0.131282),
    Sketcher.Constraint("DistanceX", -1, 1, 53, 2, 0.763778),
    Sketcher.Constraint("DistanceX", -1, 1, 55, 2, 1.804332),
    Sketcher.Constraint("DistanceY", 56, 2, -1, 1, 5.224142),
    Sketcher.Constraint("DistanceX", -1, 1, 57, 2, 2.421129),
    Sketcher.Constraint("DistanceX", -1, 1, 60, 2, 3.359979),
    Sketcher.Constraint("DistanceY", 61, 2, -1, 1, 3.987931),
    Sketcher.Constraint("DistanceX", -1, 1, 63, 2, 5.426071),
    Sketcher.Constraint("DistanceX", -1, 1, 66, 2, 6.396729),
    Sketcher.Constraint("DistanceX", -1, 1, 68, 2, 5.305278),
    Sketcher.Constraint("DistanceY", -1, 1, 72, 2, 0.131282),
    Sketcher.Constraint("DistanceX", -1, 1, 73, 2, 5.484271),
    Sketcher.Constraint("DistanceY", -1, 1, 75, 2, 1.804332),
    Sketcher.Constraint("DistanceX", -1, 1, 76, 2, 5.224142),
    Sketcher.Constraint("DistanceX", -1, 1, 77, 2, 4.979831),
    Sketcher.Constraint("DistanceX", 10, 3, -1, 1, 1.552723),
    Sketcher.Constraint("DistanceY", -1, 1, 10, 3, 5.761486),
    Sketcher.Constraint("DistanceX", 30, 3, -1, 1, 5.761486),
    Sketcher.Constraint("DistanceY", 30, 3, -1, 1, 1.552723),
    Sketcher.Constraint("DistanceX", -1, 1, 50, 3, 1.552723),
    Sketcher.Constraint("DistanceY", 50, 3, -1, 1, 5.761486),
    Sketcher.Constraint("DistanceX", -1, 1, 70, 3, 5.761486),
    Sketcher.Constraint("DistanceY", -1, 1, 70, 3, 1.552723),
])
pad1 = doc.addObject("PartDesign::Pad", "Pad")
body.addObject(pad1)
pad1.Profile = sketch1
pad1.Length = Q("0.25 in")

doc.recompute()
